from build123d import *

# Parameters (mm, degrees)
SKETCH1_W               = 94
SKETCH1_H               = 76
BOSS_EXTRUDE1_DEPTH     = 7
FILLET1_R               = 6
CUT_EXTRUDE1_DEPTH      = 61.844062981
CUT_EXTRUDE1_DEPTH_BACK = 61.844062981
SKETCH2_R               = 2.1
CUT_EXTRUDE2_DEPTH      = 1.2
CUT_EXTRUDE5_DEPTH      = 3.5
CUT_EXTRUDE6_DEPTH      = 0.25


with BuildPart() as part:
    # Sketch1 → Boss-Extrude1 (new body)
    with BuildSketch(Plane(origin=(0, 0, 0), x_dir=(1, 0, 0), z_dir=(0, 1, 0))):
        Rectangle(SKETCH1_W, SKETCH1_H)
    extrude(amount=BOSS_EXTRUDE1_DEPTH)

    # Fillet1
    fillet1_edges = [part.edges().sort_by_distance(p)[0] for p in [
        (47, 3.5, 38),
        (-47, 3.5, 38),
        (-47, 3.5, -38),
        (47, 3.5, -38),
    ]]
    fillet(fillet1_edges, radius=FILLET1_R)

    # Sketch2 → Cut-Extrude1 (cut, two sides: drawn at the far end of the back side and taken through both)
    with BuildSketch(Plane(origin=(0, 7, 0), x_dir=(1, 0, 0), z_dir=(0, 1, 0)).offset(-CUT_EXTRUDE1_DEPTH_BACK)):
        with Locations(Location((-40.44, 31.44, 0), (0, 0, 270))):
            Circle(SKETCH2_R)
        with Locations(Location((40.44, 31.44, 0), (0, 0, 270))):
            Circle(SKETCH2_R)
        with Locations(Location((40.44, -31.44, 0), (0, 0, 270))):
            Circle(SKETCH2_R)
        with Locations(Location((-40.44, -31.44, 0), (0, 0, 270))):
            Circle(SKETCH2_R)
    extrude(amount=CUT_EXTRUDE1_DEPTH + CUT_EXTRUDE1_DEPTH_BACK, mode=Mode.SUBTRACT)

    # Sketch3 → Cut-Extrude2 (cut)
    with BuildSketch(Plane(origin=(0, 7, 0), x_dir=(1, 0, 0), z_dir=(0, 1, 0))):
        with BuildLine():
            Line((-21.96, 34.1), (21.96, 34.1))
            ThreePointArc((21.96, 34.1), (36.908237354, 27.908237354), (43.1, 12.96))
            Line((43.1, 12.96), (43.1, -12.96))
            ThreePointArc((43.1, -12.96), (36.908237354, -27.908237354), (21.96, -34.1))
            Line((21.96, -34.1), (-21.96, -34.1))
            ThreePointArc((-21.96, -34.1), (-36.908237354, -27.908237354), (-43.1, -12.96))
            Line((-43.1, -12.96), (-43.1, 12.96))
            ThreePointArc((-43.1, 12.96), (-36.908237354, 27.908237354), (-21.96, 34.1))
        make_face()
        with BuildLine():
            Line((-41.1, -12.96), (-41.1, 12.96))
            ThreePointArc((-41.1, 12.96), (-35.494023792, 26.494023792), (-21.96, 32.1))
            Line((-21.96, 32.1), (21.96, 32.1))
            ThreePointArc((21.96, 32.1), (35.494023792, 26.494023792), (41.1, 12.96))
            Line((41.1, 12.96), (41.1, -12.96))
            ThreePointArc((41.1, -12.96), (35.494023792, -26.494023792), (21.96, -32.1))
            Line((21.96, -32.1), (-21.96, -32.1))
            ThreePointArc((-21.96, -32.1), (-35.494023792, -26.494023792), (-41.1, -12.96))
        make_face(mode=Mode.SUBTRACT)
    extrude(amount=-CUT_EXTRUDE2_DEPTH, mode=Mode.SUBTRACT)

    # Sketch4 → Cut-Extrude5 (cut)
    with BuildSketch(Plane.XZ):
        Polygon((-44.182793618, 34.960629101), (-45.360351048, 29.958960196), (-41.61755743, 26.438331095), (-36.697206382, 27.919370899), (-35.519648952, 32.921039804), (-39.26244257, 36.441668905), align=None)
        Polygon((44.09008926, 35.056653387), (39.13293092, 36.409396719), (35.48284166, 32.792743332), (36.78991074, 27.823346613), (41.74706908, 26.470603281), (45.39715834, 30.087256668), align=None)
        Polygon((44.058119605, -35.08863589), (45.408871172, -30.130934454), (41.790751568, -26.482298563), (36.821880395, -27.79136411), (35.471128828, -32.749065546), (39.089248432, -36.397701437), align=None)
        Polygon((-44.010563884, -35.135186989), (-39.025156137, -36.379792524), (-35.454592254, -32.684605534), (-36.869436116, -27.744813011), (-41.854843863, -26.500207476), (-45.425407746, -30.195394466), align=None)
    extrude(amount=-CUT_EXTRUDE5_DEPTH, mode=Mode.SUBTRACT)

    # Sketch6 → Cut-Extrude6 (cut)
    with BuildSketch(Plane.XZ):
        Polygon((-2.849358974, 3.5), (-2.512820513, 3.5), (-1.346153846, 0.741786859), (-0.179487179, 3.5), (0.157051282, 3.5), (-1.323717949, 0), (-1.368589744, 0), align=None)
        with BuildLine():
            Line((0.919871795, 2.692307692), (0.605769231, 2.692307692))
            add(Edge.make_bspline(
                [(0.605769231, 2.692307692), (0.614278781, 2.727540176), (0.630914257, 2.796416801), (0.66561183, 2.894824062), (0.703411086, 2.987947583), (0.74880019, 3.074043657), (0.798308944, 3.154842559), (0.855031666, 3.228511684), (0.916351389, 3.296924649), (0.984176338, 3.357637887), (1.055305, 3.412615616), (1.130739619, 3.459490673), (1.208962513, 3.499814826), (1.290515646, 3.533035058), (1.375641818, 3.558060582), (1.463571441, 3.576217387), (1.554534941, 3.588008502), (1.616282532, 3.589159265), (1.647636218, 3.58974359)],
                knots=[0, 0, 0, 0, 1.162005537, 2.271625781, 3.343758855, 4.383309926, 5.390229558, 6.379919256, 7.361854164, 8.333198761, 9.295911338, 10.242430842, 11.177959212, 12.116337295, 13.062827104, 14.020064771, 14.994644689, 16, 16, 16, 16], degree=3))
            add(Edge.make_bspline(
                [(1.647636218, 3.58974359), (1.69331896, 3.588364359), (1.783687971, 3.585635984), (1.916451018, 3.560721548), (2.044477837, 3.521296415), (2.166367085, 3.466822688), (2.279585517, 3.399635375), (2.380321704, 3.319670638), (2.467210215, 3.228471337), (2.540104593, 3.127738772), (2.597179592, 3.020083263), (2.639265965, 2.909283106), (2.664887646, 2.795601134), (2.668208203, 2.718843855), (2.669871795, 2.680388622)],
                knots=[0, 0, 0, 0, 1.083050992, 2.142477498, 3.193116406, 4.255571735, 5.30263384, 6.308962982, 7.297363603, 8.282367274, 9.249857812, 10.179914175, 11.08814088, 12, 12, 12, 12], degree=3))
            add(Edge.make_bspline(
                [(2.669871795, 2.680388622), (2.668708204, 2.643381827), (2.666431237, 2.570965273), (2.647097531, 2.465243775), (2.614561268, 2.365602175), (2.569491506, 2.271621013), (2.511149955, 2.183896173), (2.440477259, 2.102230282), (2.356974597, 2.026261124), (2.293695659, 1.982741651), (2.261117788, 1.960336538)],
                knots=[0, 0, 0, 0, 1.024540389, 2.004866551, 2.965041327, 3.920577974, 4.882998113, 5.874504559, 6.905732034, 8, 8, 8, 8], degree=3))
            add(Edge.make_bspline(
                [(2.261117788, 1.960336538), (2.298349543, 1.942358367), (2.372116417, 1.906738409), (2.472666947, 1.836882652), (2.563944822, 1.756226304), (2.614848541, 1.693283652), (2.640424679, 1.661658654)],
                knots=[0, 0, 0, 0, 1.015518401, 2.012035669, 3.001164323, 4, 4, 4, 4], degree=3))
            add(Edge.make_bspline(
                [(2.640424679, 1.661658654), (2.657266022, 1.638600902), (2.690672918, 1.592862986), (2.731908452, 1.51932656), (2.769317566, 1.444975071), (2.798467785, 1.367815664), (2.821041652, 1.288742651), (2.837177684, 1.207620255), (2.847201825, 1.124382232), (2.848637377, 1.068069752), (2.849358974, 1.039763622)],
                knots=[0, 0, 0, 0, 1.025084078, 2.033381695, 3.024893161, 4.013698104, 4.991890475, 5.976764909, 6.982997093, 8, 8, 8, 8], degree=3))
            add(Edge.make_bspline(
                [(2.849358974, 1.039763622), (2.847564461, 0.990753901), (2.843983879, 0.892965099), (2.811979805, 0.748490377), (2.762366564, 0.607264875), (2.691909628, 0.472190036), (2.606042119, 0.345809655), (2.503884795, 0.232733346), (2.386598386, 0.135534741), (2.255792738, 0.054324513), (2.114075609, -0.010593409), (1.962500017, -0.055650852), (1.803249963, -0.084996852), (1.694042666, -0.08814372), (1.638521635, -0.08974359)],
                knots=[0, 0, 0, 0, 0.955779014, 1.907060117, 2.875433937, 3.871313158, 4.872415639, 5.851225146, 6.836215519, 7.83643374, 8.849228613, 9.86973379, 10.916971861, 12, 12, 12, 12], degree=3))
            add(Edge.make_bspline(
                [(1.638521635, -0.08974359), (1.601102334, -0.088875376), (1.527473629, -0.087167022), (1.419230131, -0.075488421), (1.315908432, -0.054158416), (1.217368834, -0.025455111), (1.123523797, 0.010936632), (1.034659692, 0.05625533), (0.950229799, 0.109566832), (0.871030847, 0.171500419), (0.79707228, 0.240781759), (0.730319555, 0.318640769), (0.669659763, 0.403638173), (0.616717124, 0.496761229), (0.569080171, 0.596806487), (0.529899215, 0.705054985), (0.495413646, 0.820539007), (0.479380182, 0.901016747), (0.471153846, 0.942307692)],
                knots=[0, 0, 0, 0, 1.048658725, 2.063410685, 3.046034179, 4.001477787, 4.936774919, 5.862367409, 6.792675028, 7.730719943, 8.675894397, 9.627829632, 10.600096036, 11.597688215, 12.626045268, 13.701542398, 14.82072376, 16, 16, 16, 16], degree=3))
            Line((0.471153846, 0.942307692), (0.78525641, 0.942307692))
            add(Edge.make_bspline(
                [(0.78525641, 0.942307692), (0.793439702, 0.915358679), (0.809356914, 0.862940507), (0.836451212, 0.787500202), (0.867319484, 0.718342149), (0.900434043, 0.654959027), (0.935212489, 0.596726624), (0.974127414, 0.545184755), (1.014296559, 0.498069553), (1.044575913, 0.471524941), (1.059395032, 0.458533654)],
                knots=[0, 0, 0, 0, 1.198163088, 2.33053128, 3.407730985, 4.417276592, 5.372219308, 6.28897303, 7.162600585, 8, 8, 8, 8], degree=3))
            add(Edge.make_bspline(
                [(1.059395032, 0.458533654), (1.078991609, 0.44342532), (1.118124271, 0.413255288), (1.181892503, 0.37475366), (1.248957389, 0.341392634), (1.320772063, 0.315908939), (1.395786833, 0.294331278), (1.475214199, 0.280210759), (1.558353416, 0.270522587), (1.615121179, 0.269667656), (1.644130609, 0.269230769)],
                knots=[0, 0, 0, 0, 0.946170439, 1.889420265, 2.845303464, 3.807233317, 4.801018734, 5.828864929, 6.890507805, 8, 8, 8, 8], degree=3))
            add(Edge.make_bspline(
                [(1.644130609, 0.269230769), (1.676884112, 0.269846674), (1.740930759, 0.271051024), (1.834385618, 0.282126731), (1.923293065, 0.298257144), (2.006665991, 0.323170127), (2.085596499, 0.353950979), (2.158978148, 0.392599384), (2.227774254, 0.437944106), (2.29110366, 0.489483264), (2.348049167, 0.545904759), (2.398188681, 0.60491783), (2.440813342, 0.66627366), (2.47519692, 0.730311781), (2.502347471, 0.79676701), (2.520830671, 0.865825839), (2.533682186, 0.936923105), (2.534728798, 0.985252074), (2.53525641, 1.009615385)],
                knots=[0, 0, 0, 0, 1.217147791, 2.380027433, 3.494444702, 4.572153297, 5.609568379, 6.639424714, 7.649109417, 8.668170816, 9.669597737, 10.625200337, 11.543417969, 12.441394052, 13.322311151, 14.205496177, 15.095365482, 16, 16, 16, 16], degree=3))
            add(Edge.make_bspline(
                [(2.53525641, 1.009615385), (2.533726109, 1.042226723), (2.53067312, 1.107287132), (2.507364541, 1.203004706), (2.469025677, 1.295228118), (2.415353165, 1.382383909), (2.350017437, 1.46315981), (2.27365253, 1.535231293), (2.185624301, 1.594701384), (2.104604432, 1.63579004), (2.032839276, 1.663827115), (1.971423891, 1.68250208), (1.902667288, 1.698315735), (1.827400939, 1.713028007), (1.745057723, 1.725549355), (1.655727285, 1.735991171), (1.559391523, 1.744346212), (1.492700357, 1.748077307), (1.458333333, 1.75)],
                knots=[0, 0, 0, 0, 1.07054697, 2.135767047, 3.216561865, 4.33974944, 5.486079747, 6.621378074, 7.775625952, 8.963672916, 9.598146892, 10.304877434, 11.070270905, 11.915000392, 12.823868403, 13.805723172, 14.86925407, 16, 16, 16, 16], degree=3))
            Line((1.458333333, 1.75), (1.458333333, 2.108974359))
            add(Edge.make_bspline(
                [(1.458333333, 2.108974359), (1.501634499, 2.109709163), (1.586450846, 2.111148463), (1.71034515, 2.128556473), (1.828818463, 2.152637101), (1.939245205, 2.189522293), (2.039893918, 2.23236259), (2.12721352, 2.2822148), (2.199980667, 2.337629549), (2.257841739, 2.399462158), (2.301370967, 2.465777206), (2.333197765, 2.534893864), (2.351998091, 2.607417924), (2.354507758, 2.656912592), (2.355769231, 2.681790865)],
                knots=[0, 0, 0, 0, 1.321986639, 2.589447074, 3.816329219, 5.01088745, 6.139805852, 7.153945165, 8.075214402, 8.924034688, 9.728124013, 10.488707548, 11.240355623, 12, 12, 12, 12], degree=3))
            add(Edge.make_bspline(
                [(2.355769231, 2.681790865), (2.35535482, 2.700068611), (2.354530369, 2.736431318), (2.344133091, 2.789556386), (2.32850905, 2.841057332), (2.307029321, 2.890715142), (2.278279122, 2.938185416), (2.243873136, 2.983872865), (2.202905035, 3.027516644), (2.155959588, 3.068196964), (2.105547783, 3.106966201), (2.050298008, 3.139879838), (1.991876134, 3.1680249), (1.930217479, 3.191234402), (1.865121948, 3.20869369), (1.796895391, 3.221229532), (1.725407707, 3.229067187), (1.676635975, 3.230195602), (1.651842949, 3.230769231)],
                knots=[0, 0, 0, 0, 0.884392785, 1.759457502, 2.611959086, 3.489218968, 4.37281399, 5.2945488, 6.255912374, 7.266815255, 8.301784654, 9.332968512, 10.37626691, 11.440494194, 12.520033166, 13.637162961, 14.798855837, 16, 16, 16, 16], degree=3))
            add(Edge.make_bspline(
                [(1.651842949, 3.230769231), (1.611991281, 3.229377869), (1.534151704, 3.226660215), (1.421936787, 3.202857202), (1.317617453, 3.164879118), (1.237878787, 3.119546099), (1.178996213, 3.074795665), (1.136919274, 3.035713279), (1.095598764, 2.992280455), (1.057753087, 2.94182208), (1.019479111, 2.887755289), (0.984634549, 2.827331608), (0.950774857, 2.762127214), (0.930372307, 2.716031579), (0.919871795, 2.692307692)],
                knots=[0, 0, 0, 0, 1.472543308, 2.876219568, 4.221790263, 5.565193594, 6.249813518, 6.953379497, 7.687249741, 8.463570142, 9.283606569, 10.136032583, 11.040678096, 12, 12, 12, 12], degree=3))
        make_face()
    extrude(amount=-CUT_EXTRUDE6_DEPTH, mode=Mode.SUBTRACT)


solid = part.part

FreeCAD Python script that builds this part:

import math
import FreeCAD as App
import Part
import Sketcher


def edges_at(feature, points):
    """Names of the edges that pass closest to the given points."""
    edges = feature.Shape.Edges
    near = lambda p: min(range(len(edges)), key=lambda i: edges[i].distToShape(Part.Vertex(*p))[0])
    return sorted({f"Edge{near(p) + 1}" for p in points})


def add_polygon(sketch, points):
    """Adds a closed chain of lines whose ends are joined by coincident constraints."""
    first, n = sketch.GeometryCount, len(points)
    for a, b in zip(points, points[1:] + points[:1]):
        sketch.addGeometry(Part.LineSegment(App.Vector(*a, 0), App.Vector(*b, 0)), False)
    for i in range(n):
        sketch.addConstraint(Sketcher.Constraint("Coincident", first + i, 2, first + (i + 1) % n, 1))

doc = App.newDocument("Part")
body = doc.addObject("PartDesign::Body", "Body")

sketch1 = doc.addObject("Sketcher::SketchObject", "Sketch")
body.addObject(sketch1)
sketch1.AttachmentSupport = (doc.XZ_Plane, [""])
sketch1.MapMode = "FlatFace"
add_polygon(sketch1, [(-47, -38), (-47, 38), (47, 38), (47, -38)])
sketch1.addConstraint([
    Sketcher.Constraint("Vertical", 0),
    Sketcher.Constraint("Horizontal", 1),
    Sketcher.Constraint("Vertical", 2),
    Sketcher.Constraint("Horizontal", 3),
    Sketcher.Constraint("Symmetric", 0, 2, 2, 2, -1, 1),
    Sketcher.Constraint("DistanceX", 1, 1, 1, 2, 94.0),
    Sketcher.Constraint("DistanceY", 0, 1, 0, 2, 76.0),
])
pad1 = doc.addObject("PartDesign::Pad", "Pad")
body.addObject(pad1)
pad1.Profile = sketch1
pad1.Length = 7
pad1.Reversed = True
doc.recompute()

fillet = doc.addObject("PartDesign::Fillet", "Fillet")
body.addObject(fillet)
fillet.Base = (pad1, edges_at(pad1, [
    (47, 3.5, 38),
    (-47, 3.5, 38),
    (-47, 3.5, -38),
    (47, 3.5, -38),
]))
fillet.Radius = 6

sketch2 = doc.addObject("Sketcher::SketchObject", "Sketch001")
body.addObject(sketch2)
sketch2.AttachmentSupport = (doc.XZ_Plane, [""])
sketch2.MapMode = "FlatFace"
sketch2.AttachmentOffset = App.Placement(App.Vector(0, 0, -7), App.Rotation())
sketch2.addGeometry([
    Part.Circle(App.Vector(-40.4, -31.4, 0), App.Vector(0, 0, 1), 2.1),
    Part.Circle(App.Vector(40.4, -31.4, 0), App.Vector(0, 0, 1), 2.1),
    Part.Circle(App.Vector(40.4, 31.4, 0), App.Vector(0, 0, 1), 2.1),
    Part.Circle(App.Vector(-40.4, 31.4, 0), App.Vector(0, 0, 1), 2.1),
], False)
sketch2.addConstraint([
    Sketcher.Constraint("Equal", 0, 1),
    Sketcher.Constraint("Equal", 1, 2),
    Sketcher.Constraint("Equal", 2, 3),
    Sketcher.Constraint("Symmetric", 0, 3, 2, 3, -1, 1),
    Sketcher.Constraint("Symmetric", 1, 3, 3, 3, -1, 1),
    Sketcher.Constraint("Symmetric", 0, 3, 1, 3, -2),
    Sketcher.Constraint("Diameter", 0, 4.2),
    Sketcher.Constraint("DistanceX", 0, 3, -1, 1, 40.44),
    Sketcher.Constraint("DistanceY", 0, 3, -1, 1, 31.44),
])
pocket1 = doc.addObject("PartDesign::Pocket", "Pocket")
body.addObject(pocket1)
pocket1.Profile = sketch2
pocket1.Type = "ThroughAll"
pocket1.Midplane = True

sketch3 = doc.addObject("Sketcher::SketchObject", "Sketch002")
body.addObject(sketch3)
sketch3.AttachmentSupport = (doc.XZ_Plane, [""])
sketch3.MapMode = "FlatFace"
sketch3.AttachmentOffset = App.Placement(App.Vector(0, 0, -7), App.Rotation())
sketch3.addGeometry([
    Part.LineSegment(App.Vector(22, -34, 0), App.Vector(-22, -34, 0)),
    Part.ArcOfCircle(Part.Circle(App.Vector(-22, -13, 0), App.Vector(0, 0, 1), 21), math.radians(-180), math.radians(-90)),
    Part.LineSegment(App.Vector(-43, -13, 0), App.Vector(-43, 13, 0)),
    Part.ArcOfCircle(Part.Circle(App.Vector(-22, 13, 0), App.Vector(0, 0, 1), 21), math.radians(90), math.radians(180)),
    Part.LineSegment(App.Vector(-22, 34, 0), App.Vector(22, 34, 0)),
    Part.ArcOfCircle(Part.Circle(App.Vector(22, 13, 0), App.Vector(0, 0, 1), 21), math.radians(0), math.radians(90)),
    Part.LineSegment(App.Vector(43, 13, 0), App.Vector(43, -13, 0)),
    Part.ArcOfCircle(Part.Circle(App.Vector(22, -13, 0), App.Vector(0, 0, 1), 21), math.radians(-90), math.radians(0)),
    Part.LineSegment(App.Vector(-41, 13, 0), App.Vector(-41, -13, 0)),
    Part.ArcOfCircle(Part.Circle(App.Vector(-22, -13, 0), App.Vector(0, 0, 1), 19), math.radians(180), math.radians(270)),
    Part.LineSegment(App.Vector(-22, -32, 0), App.Vector(22, -32, 0)),
    Part.ArcOfCircle(Part.Circle(App.Vector(22, -13, 0), App.Vector(0, 0, 1), 19), math.radians(-90), math.radians(0)),
    Part.LineSegment(App.Vector(41, -13, 0), App.Vector(41, 13, 0)),
    Part.ArcOfCircle(Part.Circle(App.Vector(22, 13, 0), App.Vector(0, 0, 1), 19), math.radians(0), math.radians(90)),
    Part.LineSegment(App.Vector(22, 32, 0), App.Vector(-22, 32, 0)),
    Part.ArcOfCircle(Part.Circle(App.Vector(-22, 13, 0), App.Vector(0, 0, 1), 19), math.radians(90), math.radians(180)),
], False)
sketch3.addConstraint([
    Sketcher.Constraint("Tangent", 0, 2, 1, 2),
    Sketcher.Constraint("Tangent", 1, 1, 2, 1),
    Sketcher.Constraint("Tangent", 2, 2, 3, 2),
    Sketcher.Constraint("Tangent", 3, 1, 4, 1),
    Sketcher.Constraint("Tangent", 4, 2, 5, 2),
    Sketcher.Constraint("Tangent", 5, 1, 6, 1),
    Sketcher.Constraint("Tangent", 6, 2, 7, 2),
    Sketcher.Constraint("Tangent", 7, 1, 0, 1),
    Sketcher.Constraint("Tangent", 8, 2, 9, 1),
    Sketcher.Constraint("Tangent", 9, 2, 10, 1),
    Sketcher.Constraint("Tangent", 10, 2, 11, 1),
    Sketcher.Constraint("Tangent", 11, 2, 12, 1),
    Sketcher.Constraint("Tangent", 12, 2, 13, 1),
    Sketcher.Constraint("Tangent", 13, 2, 14, 1),
    Sketcher.Constraint("Tangent", 14, 2, 15, 1),
    Sketcher.Constraint("Tangent", 15, 2, 8, 1),
    Sketcher.Constraint("Horizontal", 0),
    Sketcher.Constraint("Vertical", 2),
    Sketcher.Constraint("Horizontal", 4),
    Sketcher.Constraint("Vertical", 6),
    Sketcher.Constraint("Vertical", 8),
    Sketcher.Constraint("Horizontal", 10),
    Sketcher.Constraint("Vertical", 12),
    Sketcher.Constraint("Horizontal", 14),
    Sketcher.Constraint("Coincident", 9, 3, 1, 3),
    Sketcher.Constraint("Coincident", 11, 3, 7, 3),
    Sketcher.Constraint("Coincident", 13, 3, 5, 3),
    Sketcher.Constraint("Equal", 1, 3),
    Sketcher.Constraint("Equal", 3, 5),
    Sketcher.Constraint("Equal", 5, 7),
    Sketcher.Constraint("Equal", 13, 15),
    Sketcher.Constraint("Symmetric", 1, 3, 5, 3, -1, 1),
    Sketcher.Constraint("Radius", 1, 21.14),
    Sketcher.Constraint("Radius", 9, 19.14),
    Sketcher.Constraint("DistanceX", 0, 2, 0, 1, 43.92),
    Sketcher.Constraint("DistanceY", 2, 1, 2, 2, 25.92),
])
pocket2 = doc.addObject("PartDesign::Pocket", "Pocket001")
body.addObject(pocket2)
pocket2.Profile = sketch3
pocket2.Length = 1.2
pocket2.Reversed = True

sketch4 = doc.addObject("Sketcher::SketchObject", "Sketch003")
body.addObject(sketch4)
sketch4.AttachmentSupport = (doc.XZ_Plane, [""])
sketch4.MapMode = "FlatFace"
add_polygon(sketch4, [(-44, 35), (-45, 30), (-42, 26), (-37, 28), (-36, 33), (-39, 36)])
add_polygon(sketch4, [(44, 35), (39, 36), (35, 33), (37, 28), (42, 26), (45, 30)])
add_polygon(sketch4, [(44, -35), (45, -30), (42, -26), (37, -28), (35, -33), (39, -36)])
add_polygon(sketch4, [(-44, -35), (-39, -36), (-35, -33), (-37, -28), (-42, -27), (-45, -30)])
sketch4.addConstraint([
    Sketcher.Constraint("Parallel", 0, 3),
    Sketcher.Constraint("Parallel", 1, 4),
    Sketcher.Constraint("Parallel", 2, 5),
    Sketcher.Constraint("Parallel", 6, 9),
    Sketcher.Constraint("Parallel", 7, 10),
    Sketcher.Constraint("Parallel", 8, 11),
    Sketcher.Constraint("Parallel", 12, 15),
    Sketcher.Constraint("Parallel", 13, 16),
    Sketcher.Constraint("Parallel", 14, 17),
    Sketcher.Constraint("Parallel", 18, 21),
    Sketcher.Constraint("Parallel", 19, 22),
    Sketcher.Constraint("Parallel", 20, 23),
    Sketcher.Constraint("Equal", 0, 1),
    Sketcher.Constraint("Equal", 1, 2),
    Sketcher.Constraint("Equal", 2, 3),
    Sketcher.Constraint("Equal", 5, 6),
    Sketcher.Constraint("Equal", 6, 7),
    Sketcher.Constraint("Equal", 7, 8),
    Sketcher.Constraint("Equal", 8, 9),
    Sketcher.Constraint("Equal", 11, 12),
    Sketcher.Constraint("Equal", 12, 13),
    Sketcher.Constraint("Equal", 13, 14),
    Sketcher.Constraint("Equal", 14, 15),
    Sketcher.Constraint("Equal", 17, 18),
    Sketcher.Constraint("Equal", 18, 19),
    Sketcher.Constraint("Equal", 19, 20),
    Sketcher.Constraint("Equal", 20, 21),
    Sketcher.Constraint("DistanceY", 13, 2, -1, 1, 26.482299),
    Sketcher.Constraint("DistanceY", 16, 2, -1, 1, 36.397701),
    Sketcher.Constraint("DistanceY", 2, 2, 4, 2, 8.522298),
    Sketcher.Constraint("DistanceX", 1, 2, 7, 2, 77.100399),
    Sketcher.Constraint("DistanceY", 13, 2, 9, 2, 52.952902),
    Sketcher.Constraint("DistanceY", 15, 2, 14, 2, 4.957701),
    Sketcher.Constraint("DistanceX", 1, 2, 18, 2, 2.592401),
    Sketcher.Constraint("DistanceY", 19, 2, 21, 2, 6.184398),
    Sketcher.Constraint("DistanceX", 0, 2, -1, 1, 45.360351),
    Sketcher.Constraint("DistanceY", -1, 1, 0, 2, 29.95896),
    Sketcher.Constraint("DistanceY", -1, 1, 1, 2, 26.438331),
    Sketcher.Constraint("DistanceY", -1, 1, 2, 2, 27.919371),
    Sketcher.Constraint("DistanceX", 3, 2, -1, 1, 35.519649),
    Sketcher.Constraint("DistanceX", -1, 1, 6, 2, 39.132931),
    Sketcher.Constraint("DistanceX", -1, 1, 8, 2, 36.789911),
    Sketcher.Constraint("DistanceX", -1, 1, 9, 2, 41.747069),
    Sketcher.Constraint("DistanceX", -1, 1, 12, 2, 45.408871),
    Sketcher.Constraint("DistanceX", -1, 1, 13, 2, 41.790752),
    Sketcher.Constraint("DistanceY", 18, 2, 5, 2, 71.340422),
    Sketcher.Constraint("DistanceX", 0, 2, 19, 2, 9.905759),
    Sketcher.Constraint("DistanceX", 18, 2, 20, 2, 2.15572),
])
pocket3 = doc.addObject("PartDesign::Pocket", "Pocket002")
body.addObject(pocket3)
pocket3.Profile = sketch4
pocket3.Length = 3.5

sketch5 = doc.addObject("Sketcher::SketchObject", "Sketch004")
body.addObject(sketch5)
sketch5.AttachmentSupport = (doc.XZ_Plane, [""])
sketch5.MapMode = "FlatFace"
add_polygon(sketch5, [(-2.512821, 3.5), (-2.849359, 3.5), (-1.36859, 0), (-1.323718, 0), (0.157051, 3.5), (-0.179487, 3.5), (-1.346154, 0.741787)])
sketch5.addGeometry(Part.LineSegment(App.Vector(0.605769, 2.692308, 0), App.Vector(0.919872, 2.692308, 0)), False)
sketch5.addGeometry(Part.BSplineCurve([App.Vector(1.651843, 3.230769, 0), App.Vector(1.611991, 3.229378, 0), App.Vector(1.534152, 3.22666, 0), App.Vector(1.421937, 3.202857, 0), App.Vector(1.317617, 3.164879, 0), App.Vector(1.237879, 3.119546, 0), App.Vector(1.178996, 3.074796, 0), App.Vector(1.136919, 3.035713, 0), App.Vector(1.095599, 2.99228, 0), App.Vector(1.057753, 2.941822, 0), App.Vector(1.019479, 2.887755, 0), App.Vector(0.984635, 2.827332, 0), App.Vector(0.950775, 2.762127, 0), App.Vector(0.930372, 2.716032, 0), App.Vector(0.919872, 2.692308, 0)], [4, 1, 1, 1, 1, 1, 1, 1, 1, 1, 1, 1, 4], [0, 1.472543308, 2.876219568, 4.221790263, 5.565193594, 6.249813518, 6.953379497, 7.687249741, 8.463570142, 9.283606569, 10.136032583, 11.040678096, 12], False, 3, [1, 1, 1, 1, 1, 1, 1, 1, 1, 1, 1, 1, 1, 1, 1], False), False)
sketch5.addGeometry(Part.BSplineCurve([App.Vector(2.355769, 2.681791, 0), App.Vector(2.355355, 2.700069, 0), App.Vector(2.35453, 2.736431, 0), App.Vector(2.344133, 2.789556, 0), App.Vector(2.328509, 2.841057, 0), App.Vector(2.307029, 2.890715, 0), App.Vector(2.278279, 2.938185, 0), App.Vector(2.243873, 2.983873, 0), App.Vector(2.202905, 3.027517, 0), App.Vector(2.15596, 3.068197, 0), App.Vector(2.105548, 3.106966, 0), App.Vector(2.050298, 3.13988, 0), App.Vector(1.991876, 3.168025, 0), App.Vector(1.930217, 3.191234, 0), App.Vector(1.865122, 3.208694, 0), App.Vector(1.796895, 3.22123, 0), App.Vector(1.725408, 3.229067, 0), App.Vector(1.676636, 3.230196, 0), App.Vector(1.651843, 3.230769, 0)], [4, 1, 1, 1, 1, 1, 1, 1, 1, 1, 1, 1, 1, 1, 1, 1, 4], [0, 0.884392785, 1.759457502, 2.611959086, 3.489218968, 4.37281399, 5.2945488, 6.255912374, 7.266815255, 8.301784654, 9.332968512, 10.37626691, 11.440494194, 12.520033166, 13.637162961, 14.798855837, 16], False, 3, [1, 1, 1, 1, 1, 1, 1, 1, 1, 1, 1, 1, 1, 1, 1, 1, 1, 1, 1], False), False)
sketch5.addGeometry(Part.BSplineCurve([App.Vector(1.458333, 2.108974, 0), App.Vector(1.501634, 2.109709, 0), App.Vector(1.586451, 2.111148, 0), App.Vector(1.710345, 2.128556, 0), App.Vector(1.828818, 2.152637, 0), App.Vector(1.939245, 2.189522, 0), App.Vector(2.039894, 2.232363, 0), App.Vector(2.127214, 2.282215, 0), App.Vector(2.199981, 2.33763, 0), App.Vector(2.257842, 2.399462, 0), App.Vector(2.301371, 2.465777, 0), App.Vector(2.333198, 2.534894, 0), App.Vector(2.351998, 2.607418, 0), App.Vector(2.354508, 2.656913, 0), App.Vector(2.355769, 2.681791, 0)], [4, 1, 1, 1, 1, 1, 1, 1, 1, 1, 1, 1, 4], [0, 1.321986639, 2.589447074, 3.816329219, 5.01088745, 6.139805852, 7.153945165, 8.075214402, 8.924034688, 9.728124013, 10.488707548, 11.240355623, 12], False, 3, [1, 1, 1, 1, 1, 1, 1, 1, 1, 1, 1, 1, 1, 1, 1], False), False)
sketch5.addGeometry(Part.LineSegment(App.Vector(1.458333, 2.108974, 0), App.Vector(1.458333, 1.75, 0)), False)
sketch5.addGeometry(Part.BSplineCurve([App.Vector(2.535256, 1.009615, 0), App.Vector(2.533726, 1.042227, 0), App.Vector(2.530673, 1.107287, 0), App.Vector(2.507365, 1.203005, 0), App.Vector(2.469026, 1.295228, 0), App.Vector(2.415353, 1.382384, 0), App.Vector(2.350017, 1.46316, 0), App.Vector(2.273653, 1.535231, 0), App.Vector(2.185624, 1.594701, 0), App.Vector(2.104604, 1.63579, 0), App.Vector(2.032839, 1.663827, 0), App.Vector(1.971424, 1.682502, 0), App.Vector(1.902667, 1.698316, 0), App.Vector(1.827401, 1.713028, 0), App.Vector(1.745058, 1.725549, 0), App.Vector(1.655727, 1.735991, 0), App.Vector(1.559392, 1.744346, 0), App.Vector(1.4927, 1.748077, 0), App.Vector(1.458333, 1.75, 0)], [4, 1, 1, 1, 1, 1, 1, 1, 1, 1, 1, 1, 1, 1, 1, 1, 4], [0, 1.07054697, 2.135767047, 3.216561865, 4.33974944, 5.486079747, 6.621378074, 7.775625952, 8.963672916, 9.598146892, 10.304877434, 11.070270905, 11.915000392, 12.823868403, 13.805723172, 14.86925407, 16], False, 3, [1, 1, 1, 1, 1, 1, 1, 1, 1, 1, 1, 1, 1, 1, 1, 1, 1, 1, 1], False), False)
sketch5.addGeometry(Part.BSplineCurve([App.Vector(1.644131, 0.269231, 0), App.Vector(1.676884, 0.269847, 0), App.Vector(1.740931, 0.271051, 0), App.Vector(1.834386, 0.282127, 0), App.Vector(1.923293, 0.298257, 0), App.Vector(2.006666, 0.32317, 0), App.Vector(2.085596, 0.353951, 0), App.Vector(2.158978, 0.392599, 0), App.Vector(2.227774, 0.437944, 0), App.Vector(2.291104, 0.489483, 0), App.Vector(2.348049, 0.545905, 0), App.Vector(2.398189, 0.604918, 0), App.Vector(2.440813, 0.666274, 0), App.Vector(2.475197, 0.730312, 0), App.Vector(2.502347, 0.796767, 0), App.Vector(2.520831, 0.865826, 0), App.Vector(2.533682, 0.936923, 0), App.Vector(2.534729, 0.985252, 0), App.Vector(2.535256, 1.009615, 0)], [4, 1, 1, 1, 1, 1, 1, 1, 1, 1, 1, 1, 1, 1, 1, 1, 4], [0, 1.217147791, 2.380027433, 3.494444702, 4.572153297, 5.609568379, 6.639424714, 7.649109417, 8.668170816, 9.669597737, 10.625200337, 11.543417969, 12.441394052, 13.322311151, 14.205496177, 15.095365482, 16], False, 3, [1, 1, 1, 1, 1, 1, 1, 1, 1, 1, 1, 1, 1, 1, 1, 1, 1, 1, 1], False), False)
sketch5.addGeometry(Part.BSplineCurve([App.Vector(1.059395, 0.458534, 0), App.Vector(1.078992, 0.443425, 0), App.Vector(1.118124, 0.413255, 0), App.Vector(1.181893, 0.374754, 0), App.Vector(1.248957, 0.341393, 0), App.Vector(1.320772, 0.315909, 0), App.Vector(1.395787, 0.294331, 0), App.Vector(1.475214, 0.280211, 0), App.Vector(1.558353, 0.270523, 0), App.Vector(1.615121, 0.269668, 0), App.Vector(1.644131, 0.269231, 0)], [4, 1, 1, 1, 1, 1, 1, 1, 4], [0, 0.946170439, 1.889420265, 2.845303464, 3.807233317, 4.801018734, 5.828864929, 6.890507805, 8], False, 3, [1, 1, 1, 1, 1, 1, 1, 1, 1, 1, 1], False), False)
sketch5.addGeometry(Part.BSplineCurve([App.Vector(0.785256, 0.942308, 0), App.Vector(0.79344, 0.915359, 0), App.Vector(0.809357, 0.862941, 0), App.Vector(0.836451, 0.7875, 0), App.Vector(0.867319, 0.718342, 0), App.Vector(0.900434, 0.654959, 0), App.Vector(0.935212, 0.596727, 0), App.Vector(0.974127, 0.545185, 0), App.Vector(1.014297, 0.49807, 0), App.Vector(1.044576, 0.471525, 0), App.Vector(1.059395, 0.458534, 0)], [4, 1, 1, 1, 1, 1, 1, 1, 4], [0, 1.198163088, 2.33053128, 3.407730985, 4.417276592, 5.372219308, 6.28897303, 7.162600585, 8], False, 3, [1, 1, 1, 1, 1, 1, 1, 1, 1, 1, 1], False), False)
sketch5.addGeometry(Part.LineSegment(App.Vector(0.785256, 0.942308, 0), App.Vector(0.471154, 0.942308, 0)), False)
sketch5.addGeometry(Part.BSplineCurve([App.Vector(1.638522, -0.089744, 0), App.Vector(1.601102, -0.088875, 0), App.Vector(1.527474, -0.087167, 0), App.Vector(1.41923, -0.075488, 0), App.Vector(1.315908, -0.054158, 0), App.Vector(1.217369, -0.025455, 0), App.Vector(1.123524, 0.010937, 0), App.Vector(1.03466, 0.056255, 0), App.Vector(0.95023, 0.109567, 0), App.Vector(0.871031, 0.1715, 0), App.Vector(0.797072, 0.240782, 0), App.Vector(0.73032, 0.318641, 0), App.Vector(0.66966, 0.403638, 0), App.Vector(0.616717, 0.496761, 0), App.Vector(0.56908, 0.596806, 0), App.Vector(0.529899, 0.705055, 0), App.Vector(0.495414, 0.820539, 0), App.Vector(0.47938, 0.901017, 0), App.Vector(0.471154, 0.942308, 0)], [4, 1, 1, 1, 1, 1, 1, 1, 1, 1, 1, 1, 1, 1, 1, 1, 4], [0, 1.048658725, 2.063410685, 3.046034179, 4.001477787, 4.936774919, 5.862367409, 6.792675028, 7.730719943, 8.675894397, 9.627829632, 10.600096036, 11.597688215, 12.626045268, 13.701542398, 14.82072376, 16], False, 3, [1, 1, 1, 1, 1, 1, 1, 1, 1, 1, 1, 1, 1, 1, 1, 1, 1, 1, 1], False), False)
sketch5.addGeometry(Part.BSplineCurve([App.Vector(2.849359, 1.039764, 0), App.Vector(2.847564, 0.990754, 0), App.Vector(2.843984, 0.892965, 0), App.Vector(2.81198, 0.74849, 0), App.Vector(2.762367, 0.607265, 0), App.Vector(2.69191, 0.47219, 0), App.Vector(2.606042, 0.34581, 0), App.Vector(2.503885, 0.232733, 0), App.Vector(2.386598, 0.135535, 0), App.Vector(2.255793, 0.054325, 0), App.Vector(2.114076, -0.010593, 0), App.Vector(1.9625, -0.055651, 0), App.Vector(1.80325, -0.084997, 0), App.Vector(1.694043, -0.088144, 0), App.Vector(1.638522, -0.089744, 0)], [4, 1, 1, 1, 1, 1, 1, 1, 1, 1, 1, 1, 4], [0, 0.955779014, 1.907060117, 2.875433937, 3.871313158, 4.872415639, 5.851225146, 6.836215519, 7.83643374, 8.849228613, 9.86973379, 10.916971861, 12], False, 3, [1, 1, 1, 1, 1, 1, 1, 1, 1, 1, 1, 1, 1, 1, 1], False), False)
sketch5.addGeometry(Part.BSplineCurve([App.Vector(2.640425, 1.661659, 0), App.Vector(2.657266, 1.638601, 0), App.Vector(2.690673, 1.592863, 0), App.Vector(2.731908, 1.519327, 0), App.Vector(2.769318, 1.444975, 0), App.Vector(2.798468, 1.367816, 0), App.Vector(2.821042, 1.288743, 0), App.Vector(2.837178, 1.20762, 0), App.Vector(2.847202, 1.124382, 0), App.Vector(2.848637, 1.06807, 0), App.Vector(2.849359, 1.039764, 0)], [4, 1, 1, 1, 1, 1, 1, 1, 4], [0, 1.025084078, 2.033381695, 3.024893161, 4.013698104, 4.991890475, 5.976764909, 6.982997093, 8], False, 3, [1, 1, 1, 1, 1, 1, 1, 1, 1, 1, 1], False), False)
sketch5.addGeometry(Part.BSplineCurve([App.Vector(2.261118, 1.960337, 0), App.Vector(2.29835, 1.942358, 0), App.Vector(2.372116, 1.906738, 0), App.Vector(2.472667, 1.836883, 0), App.Vector(2.563945, 1.756226, 0), App.Vector(2.614849, 1.693284, 0), App.Vector(2.640425, 1.661659, 0)], [4, 1, 1, 1, 4], [0, 1.015518401, 2.012035669, 3.001164323, 4], False, 3, [1, 1, 1, 1, 1, 1, 1], False), False)
sketch5.addGeometry(Part.BSplineCurve([App.Vector(2.669872, 2.680389, 0), App.Vector(2.668708, 2.643382, 0), App.Vector(2.666431, 2.570965, 0), App.Vector(2.647098, 2.465244, 0), App.Vector(2.614561, 2.365602, 0), App.Vector(2.569492, 2.271621, 0), App.Vector(2.51115, 2.183896, 0), App.Vector(2.440477, 2.10223, 0), App.Vector(2.356975, 2.026261, 0), App.Vector(2.293696, 1.982742, 0), App.Vector(2.261118, 1.960337, 0)], [4, 1, 1, 1, 1, 1, 1, 1, 4], [0, 1.024540389, 2.004866551, 2.965041327, 3.920577974, 4.882998113, 5.874504559, 6.905732034, 8], False, 3, [1, 1, 1, 1, 1, 1, 1, 1, 1, 1, 1], False), False)
sketch5.addGeometry(Part.BSplineCurve([App.Vector(1.647636, 3.589744, 0), App.Vector(1.693319, 3.588364, 0), App.Vector(1.783688, 3.585636, 0), App.Vector(1.916451, 3.560722, 0), App.Vector(2.044478, 3.521296, 0), App.Vector(2.166367, 3.466823, 0), App.Vector(2.279586, 3.399635, 0), App.Vector(2.380322, 3.319671, 0), App.Vector(2.46721, 3.228471, 0), App.Vector(2.540105, 3.127739, 0), App.Vector(2.59718, 3.020083, 0), App.Vector(2.639266, 2.909283, 0), App.Vector(2.664888, 2.795601, 0), App.Vector(2.668208, 2.718844, 0), App.Vector(2.669872, 2.680389, 0)], [4, 1, 1, 1, 1, 1, 1, 1, 1, 1, 1, 1, 4], [0, 1.083050992, 2.142477498, 3.193116406, 4.255571735, 5.30263384, 6.308962982, 7.297363603, 8.282367274, 9.249857812, 10.179914175, 11.08814088, 12], False, 3, [1, 1, 1, 1, 1, 1, 1, 1, 1, 1, 1, 1, 1, 1, 1], False), False)
sketch5.addGeometry(Part.BSplineCurve([App.Vector(0.605769, 2.692308, 0), App.Vector(0.614279, 2.72754, 0), App.Vector(0.630914, 2.796417, 0), App.Vector(0.665612, 2.894824, 0), App.Vector(0.703411, 2.987948, 0), App.Vector(0.7488, 3.074044, 0), App.Vector(0.798309, 3.154843, 0), App.Vector(0.855032, 3.228512, 0), App.Vector(0.916351, 3.296925, 0), App.Vector(0.984176, 3.357638, 0), App.Vector(1.055305, 3.412616, 0), App.Vector(1.13074, 3.459491, 0), App.Vector(1.208963, 3.499815, 0), App.Vector(1.290516, 3.533035, 0), App.Vector(1.375642, 3.558061, 0), App.Vector(1.463571, 3.576217, 0), App.Vector(1.554535, 3.588009, 0), App.Vector(1.616283, 3.589159, 0), App.Vector(1.647636, 3.589744, 0)], [4, 1, 1, 1, 1, 1, 1, 1, 1, 1, 1, 1, 1, 1, 1, 1, 4], [0, 1.162005537, 2.271625781, 3.343758855, 4.383309926, 5.390229558, 6.379919256, 7.361854164, 8.333198761, 9.295911338, 10.242430842, 11.177959212, 12.116337295, 13.062827104, 14.020064771, 14.994644689, 16], False, 3, [1, 1, 1, 1, 1, 1, 1, 1, 1, 1, 1, 1, 1, 1, 1, 1, 1, 1, 1], False), False)
sketch5.addConstraint([
    Sketcher.Constraint("Block", 8),
    Sketcher.Constraint("Block", 9),
    Sketcher.Constraint("Block", 10),
    Sketcher.Constraint("Block", 12),
    Sketcher.Constraint("Block", 13),
    Sketcher.Constraint("Block", 14),
    Sketcher.Constraint("Block", 15),
    Sketcher.Constraint("Block", 17),
    Sketcher.Constraint("Block", 18),
    Sketcher.Constraint("Block", 19),
    Sketcher.Constraint("Block", 20),
    Sketcher.Constraint("Block", 21),
    Sketcher.Constraint("Block", 22),
    Sketcher.Constraint("Block", 23),
    Sketcher.Constraint("Coincident", 7, 2, 8, 2),
    Sketcher.Constraint("Coincident", 10, 1, 11, 1),
    Sketcher.Constraint("Coincident", 11, 2, 12, 2),
    Sketcher.Constraint("Coincident", 15, 1, 16, 1),
    Sketcher.Constraint("Coincident", 16, 2, 17, 2),
    Sketcher.Constraint("Coincident", 23, 1, 7, 1),
    Sketcher.Constraint("Horizontal", 0),
    Sketcher.Constraint("Horizontal", 2),
    Sketcher.Constraint("Horizontal", 4),
    Sketcher.Constraint("PointOnObject", 1, 2, -1),
    Sketcher.Constraint("Horizontal", 0, 2, 3, 2),
    Sketcher.Constraint("Equal", 0, 4),
    Sketcher.Constraint("Equal", 1, 3),
    Sketcher.Constraint("Equal", 5, 6),
    Sketcher.Constraint("DistanceY", -1, 1, 0, 2, 3.5),
    Sketcher.Constraint("DistanceX", 0, 2, 0, 1, 0.336538),
    Sketcher.Constraint("DistanceX", 2, 1, 2, 2, 0.044872),
    Sketcher.Constraint("DistanceX", 0, 2, -1, 1, 2.849359),
    Sketcher.Constraint("DistanceX", 1, 2, -1, 1, 1.36859),
    Sketcher.Constraint("DistanceY", 5, 2, 7, 2, 1.950521),
])
pocket4 = doc.addObject("PartDesign::Pocket", "Pocket003")
body.addObject(pocket4)
pocket4.Profile = sketch5
pocket4.Length = 0.25

doc.recompute()
